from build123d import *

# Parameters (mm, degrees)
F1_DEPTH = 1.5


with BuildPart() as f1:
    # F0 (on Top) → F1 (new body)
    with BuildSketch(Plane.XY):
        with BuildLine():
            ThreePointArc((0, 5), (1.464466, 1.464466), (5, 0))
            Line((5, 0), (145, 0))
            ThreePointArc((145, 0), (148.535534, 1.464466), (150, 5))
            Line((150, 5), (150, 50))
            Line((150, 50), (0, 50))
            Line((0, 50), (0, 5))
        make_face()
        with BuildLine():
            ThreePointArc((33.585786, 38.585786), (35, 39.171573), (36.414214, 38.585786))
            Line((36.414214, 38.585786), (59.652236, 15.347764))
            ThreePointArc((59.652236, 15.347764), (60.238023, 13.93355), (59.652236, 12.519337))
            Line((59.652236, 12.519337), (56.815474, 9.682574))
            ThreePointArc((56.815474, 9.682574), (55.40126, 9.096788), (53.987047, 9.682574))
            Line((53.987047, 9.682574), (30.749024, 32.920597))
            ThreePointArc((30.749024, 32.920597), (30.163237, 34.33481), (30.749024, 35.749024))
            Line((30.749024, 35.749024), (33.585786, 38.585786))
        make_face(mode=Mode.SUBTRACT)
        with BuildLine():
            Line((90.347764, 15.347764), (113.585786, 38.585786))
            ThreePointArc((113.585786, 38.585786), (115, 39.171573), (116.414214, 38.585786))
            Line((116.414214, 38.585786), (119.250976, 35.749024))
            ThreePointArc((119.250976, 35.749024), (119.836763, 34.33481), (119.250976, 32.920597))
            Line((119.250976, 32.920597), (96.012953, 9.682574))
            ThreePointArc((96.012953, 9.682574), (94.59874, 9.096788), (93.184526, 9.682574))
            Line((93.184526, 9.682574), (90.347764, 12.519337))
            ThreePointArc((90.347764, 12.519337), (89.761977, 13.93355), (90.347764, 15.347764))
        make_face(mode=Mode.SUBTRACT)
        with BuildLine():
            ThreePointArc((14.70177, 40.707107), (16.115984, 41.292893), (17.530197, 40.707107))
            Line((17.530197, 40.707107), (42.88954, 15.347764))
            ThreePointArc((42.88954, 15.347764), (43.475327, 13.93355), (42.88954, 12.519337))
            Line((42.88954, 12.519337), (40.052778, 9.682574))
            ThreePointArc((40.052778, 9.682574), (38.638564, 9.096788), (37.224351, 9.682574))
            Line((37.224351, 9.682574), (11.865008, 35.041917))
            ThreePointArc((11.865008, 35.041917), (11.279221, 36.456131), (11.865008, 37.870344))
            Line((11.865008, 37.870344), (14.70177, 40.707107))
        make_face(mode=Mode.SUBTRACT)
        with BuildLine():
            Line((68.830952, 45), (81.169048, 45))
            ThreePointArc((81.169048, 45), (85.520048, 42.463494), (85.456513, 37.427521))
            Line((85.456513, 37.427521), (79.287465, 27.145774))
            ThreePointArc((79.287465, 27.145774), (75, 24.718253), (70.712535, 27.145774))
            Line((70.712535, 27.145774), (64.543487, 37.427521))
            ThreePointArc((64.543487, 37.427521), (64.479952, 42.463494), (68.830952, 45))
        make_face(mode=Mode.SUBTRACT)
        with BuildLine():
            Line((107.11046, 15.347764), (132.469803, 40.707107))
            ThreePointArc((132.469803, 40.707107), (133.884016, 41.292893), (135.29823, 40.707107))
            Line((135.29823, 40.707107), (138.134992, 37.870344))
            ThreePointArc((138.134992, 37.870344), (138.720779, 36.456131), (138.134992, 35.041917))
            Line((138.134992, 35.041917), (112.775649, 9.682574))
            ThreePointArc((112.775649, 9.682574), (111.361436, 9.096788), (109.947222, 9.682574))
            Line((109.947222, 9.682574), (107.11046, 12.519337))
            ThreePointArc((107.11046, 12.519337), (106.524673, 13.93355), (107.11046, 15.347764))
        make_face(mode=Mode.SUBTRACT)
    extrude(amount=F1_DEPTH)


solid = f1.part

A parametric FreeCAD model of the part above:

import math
import FreeCAD as App
import Part
import Sketcher
from FreeCAD import Vector

doc = App.newDocument("Part")
body = doc.addObject("PartDesign::Body", "Body")

# Sketch on XY plane
sketch1 = body.newObject("Sketcher::SketchObject", "Sketch")
sketch1.AttachmentSupport = (doc.getObject("XY_Plane"), [""])
sketch1.MapMode = "FlatFace"
sketch1.addGeometry(Part.ArcOfCircle(Part.Circle(Vector(5, 5, 0), Vector(0, 0, 1), 5), math.radians(179.999996), math.radians(270.000004)), False)
sketch1.addGeometry(Part.LineSegment(Vector(5, 0, 0), Vector(145, 0, 0)), False)
sketch1.addGeometry(Part.ArcOfCircle(Part.Circle(Vector(145, 5, 0), Vector(0, 0, 1), 5), math.radians(-90.000004), math.radians(0.000004)), False)
sketch1.addGeometry(Part.LineSegment(Vector(150, 5, 0), Vector(150, 50, 0)), False)
sketch1.addGeometry(Part.LineSegment(Vector(150, 50, 0), Vector(0, 50, 0)), False)
sketch1.addGeometry(Part.LineSegment(Vector(0, 50, 0), Vector(0, 5, 0)), False)
sketch1.addGeometry(Part.LineSegment(Vector(11.865008, 37.870344, 0), Vector(14.70177, 40.707107, 0)), False)
sketch1.addGeometry(Part.ArcOfCircle(Part.Circle(Vector(16.115983, 39.292892, 0), Vector(0, 0, 1), 2.000001), math.radians(45.000028), math.radians(134.999972)), False)
sketch1.addGeometry(Part.LineSegment(Vector(17.530197, 40.707107, 0), Vector(42.88954, 15.347764, 0)), False)
sketch1.addGeometry(Part.ArcOfCircle(Part.Circle(Vector(41.475329, 13.933551, 0), Vector(0, 0, 1), 1.999998), math.radians(-45.000041), math.radians(45.000041)), False)
sketch1.addGeometry(Part.LineSegment(Vector(42.88954, 12.519337, 0), Vector(40.052778, 9.682574, 0)), False)
sketch1.addGeometry(Part.ArcOfCircle(Part.Circle(Vector(38.638565, 11.096789, 0), Vector(0, 0, 1), 2.000001), math.radians(-134.999972), math.radians(-45.000028)), False)
sketch1.addGeometry(Part.LineSegment(Vector(37.224351, 9.682574, 0), Vector(11.865008, 35.041917, 0)), False)
sketch1.addGeometry(Part.ArcOfCircle(Part.Circle(Vector(13.279219, 36.456131, 0), Vector(0, 0, 1), 1.999998), math.radians(134.999959), math.radians(225.000041)), False)
sketch1.addGeometry(Part.LineSegment(Vector(30.749024, 35.749024, 0), Vector(33.585786, 38.585786, 0)), False)
sketch1.addGeometry(Part.ArcOfCircle(Part.Circle(Vector(35, 37.171573, 0), Vector(0, 0, 1), 2), math.radians(44.999974), math.radians(135.000026)), False)
sketch1.addGeometry(Part.LineSegment(Vector(36.414214, 38.585786, 0), Vector(59.652236, 15.347764, 0)), False)
sketch1.addGeometry(Part.ArcOfCircle(Part.Circle(Vector(58.238025, 13.933551, 0), Vector(0, 0, 1), 1.999998), math.radians(-45.000041), math.radians(45.000041)), False)
sketch1.addGeometry(Part.LineSegment(Vector(59.652236, 12.519337, 0), Vector(56.815474, 9.682574, 0)), False)
sketch1.addGeometry(Part.ArcOfCircle(Part.Circle(Vector(55.40126, 11.096789, 0), Vector(0, 0, 1), 2.000001), math.radians(-134.999972), math.radians(-45.000028)), False)
sketch1.addGeometry(Part.LineSegment(Vector(53.987047, 9.682574, 0), Vector(30.749024, 32.920597, 0)), False)
sketch1.addGeometry(Part.ArcOfCircle(Part.Circle(Vector(32.163235, 34.334811, 0), Vector(0, 0, 1), 1.999998), math.radians(134.999959), math.radians(225.000041)), False)
sketch1.addGeometry(Part.ArcOfCircle(Part.Circle(Vector(91.761975, 13.933551, 0), Vector(0, 0, 1), 1.999998), math.radians(134.999959), math.radians(225.000041)), False)
sketch1.addGeometry(Part.LineSegment(Vector(90.347764, 15.347764, 0), Vector(113.585786, 38.585786, 0)), False)
sketch1.addGeometry(Part.ArcOfCircle(Part.Circle(Vector(115, 37.171573, 0), Vector(0, 0, 1), 2), math.radians(44.999974), math.radians(135.000026)), False)
sketch1.addGeometry(Part.LineSegment(Vector(116.414214, 38.585786, 0), Vector(119.250976, 35.749024, 0)), False)
sketch1.addGeometry(Part.ArcOfCircle(Part.Circle(Vector(117.836765, 34.334811, 0), Vector(0, 0, 1), 1.999998), math.radians(-45.000041), math.radians(45.000041)), False)
sketch1.addGeometry(Part.LineSegment(Vector(119.250976, 32.920597, 0), Vector(96.012953, 9.682574, 0)), False)
sketch1.addGeometry(Part.ArcOfCircle(Part.Circle(Vector(94.598739, 11.096789, 0), Vector(0, 0, 1), 2.000001), math.radians(-134.999972), math.radians(-45.000028)), False)
sketch1.addGeometry(Part.LineSegment(Vector(93.184526, 9.682574, 0), Vector(90.347764, 12.519337, 0)), False)
sketch1.addGeometry(Part.ArcOfCircle(Part.Circle(Vector(108.524671, 13.933551, 0), Vector(0, 0, 1), 1.999998), math.radians(134.999959), math.radians(225.000041)), False)
sketch1.addGeometry(Part.LineSegment(Vector(107.11046, 15.347764, 0), Vector(132.469803, 40.707107, 0)), False)
sketch1.addGeometry(Part.ArcOfCircle(Part.Circle(Vector(133.884017, 39.292892, 0), Vector(0, 0, 1), 2.000001), math.radians(45.000028), math.radians(134.999972)), False)
sketch1.addGeometry(Part.LineSegment(Vector(135.29823, 40.707107, 0), Vector(138.134992, 37.870344, 0)), False)
sketch1.addGeometry(Part.ArcOfCircle(Part.Circle(Vector(136.720781, 36.456131, 0), Vector(0, 0, 1), 1.999998), math.radians(-45.000041), math.radians(45.000041)), False)
sketch1.addGeometry(Part.LineSegment(Vector(138.134992, 35.041917, 0), Vector(112.775649, 9.682574, 0)), False)
sketch1.addGeometry(Part.ArcOfCircle(Part.Circle(Vector(111.361435, 11.096789, 0), Vector(0, 0, 1), 2.000001), math.radians(-134.999972), math.radians(-45.000028)), False)
sketch1.addGeometry(Part.LineSegment(Vector(109.947222, 9.682574, 0), Vector(107.11046, 12.519337, 0)), False)
sketch1.addGeometry(Part.ArcOfCircle(Part.Circle(Vector(68.830952, 40, 0), Vector(0, 0, 1), 5), math.radians(89.999996), math.radians(210.963758)), False)
sketch1.addGeometry(Part.LineSegment(Vector(68.830952, 45, 0), Vector(81.169048, 45, 0)), False)
sketch1.addGeometry(Part.ArcOfCircle(Part.Circle(Vector(81.169048, 40, 0), Vector(0, 0, 1), 5), math.radians(-30.963758), math.radians(90.000004)), False)
sketch1.addGeometry(Part.LineSegment(Vector(85.456513, 37.427521, 0), Vector(79.287465, 27.145774, 0)), False)
sketch1.addGeometry(Part.ArcOfCircle(Part.Circle(Vector(75, 29.718254, 0), Vector(0, 0, 1), 5.000001), math.radians(-149.036235), math.radians(-30.963765)), False)
sketch1.addGeometry(Part.LineSegment(Vector(70.712535, 27.145774, 0), Vector(64.543487, 37.427521, 0)), False)
sketch1.addConstraint(Sketcher.Constraint("Tangent", 0, 2, 1, 1))
sketch1.addConstraint(Sketcher.Constraint("Tangent", 1, 2, 2, 1))
sketch1.addConstraint(Sketcher.Constraint("Tangent", 2, 2, 3, 1))
sketch1.addConstraint(Sketcher.Constraint("Coincident", 3, 2, 4, 1))
sketch1.addConstraint(Sketcher.Constraint("Coincident", 4, 2, 5, 1))
sketch1.addConstraint(Sketcher.Constraint("Tangent", 5, 2, 0, 1))
sketch1.addConstraint(Sketcher.Constraint("Tangent", 6, 2, 7, 2))
sketch1.addConstraint(Sketcher.Constraint("Tangent", 7, 1, 8, 1))
sketch1.addConstraint(Sketcher.Constraint("Tangent", 8, 2, 9, 2))
sketch1.addConstraint(Sketcher.Constraint("Tangent", 9, 1, 10, 1))
sketch1.addConstraint(Sketcher.Constraint("Tangent", 10, 2, 11, 2))
sketch1.addConstraint(Sketcher.Constraint("Tangent", 11, 1, 12, 1))
sketch1.addConstraint(Sketcher.Constraint("Tangent", 12, 2, 13, 2))
sketch1.addConstraint(Sketcher.Constraint("Tangent", 13, 1, 6, 1))
sketch1.addConstraint(Sketcher.Constraint("Tangent", 14, 2, 15, 2))
sketch1.addConstraint(Sketcher.Constraint("Tangent", 15, 1, 16, 1))
sketch1.addConstraint(Sketcher.Constraint("Tangent", 16, 2, 17, 2))
sketch1.addConstraint(Sketcher.Constraint("Tangent", 17, 1, 18, 1))
sketch1.addConstraint(Sketcher.Constraint("Tangent", 18, 2, 19, 2))
sketch1.addConstraint(Sketcher.Constraint("Tangent", 19, 1, 20, 1))
sketch1.addConstraint(Sketcher.Constraint("Tangent", 20, 2, 21, 2))
sketch1.addConstraint(Sketcher.Constraint("Tangent", 21, 1, 14, 1))
sketch1.addConstraint(Sketcher.Constraint("Tangent", 22, 1, 23, 1))
sketch1.addConstraint(Sketcher.Constraint("Tangent", 23, 2, 24, 2))
sketch1.addConstraint(Sketcher.Constraint("Tangent", 24, 1, 25, 1))
sketch1.addConstraint(Sketcher.Constraint("Tangent", 25, 2, 26, 2))
sketch1.addConstraint(Sketcher.Constraint("Tangent", 26, 1, 27, 1))
sketch1.addConstraint(Sketcher.Constraint("Tangent", 27, 2, 28, 2))
sketch1.addConstraint(Sketcher.Constraint("Tangent", 28, 1, 29, 1))
sketch1.addConstraint(Sketcher.Constraint("Tangent", 29, 2, 22, 2))
sketch1.addConstraint(Sketcher.Constraint("Tangent", 30, 1, 31, 1))
sketch1.addConstraint(Sketcher.Constraint("Tangent", 31, 2, 32, 2))
sketch1.addConstraint(Sketcher.Constraint("Tangent", 32, 1, 33, 1))
sketch1.addConstraint(Sketcher.Constraint("Tangent", 33, 2, 34, 2))
sketch1.addConstraint(Sketcher.Constraint("Tangent", 34, 1, 35, 1))
sketch1.addConstraint(Sketcher.Constraint("Tangent", 35, 2, 36, 2))
sketch1.addConstraint(Sketcher.Constraint("Tangent", 36, 1, 37, 1))
sketch1.addConstraint(Sketcher.Constraint("Tangent", 37, 2, 30, 2))
sketch1.addConstraint(Sketcher.Constraint("Tangent", 38, 1, 39, 1))
sketch1.addConstraint(Sketcher.Constraint("Tangent", 39, 2, 40, 2))
sketch1.addConstraint(Sketcher.Constraint("Tangent", 40, 1, 41, 1))
sketch1.addConstraint(Sketcher.Constraint("Tangent", 41, 2, 42, 2))
sketch1.addConstraint(Sketcher.Constraint("Tangent", 42, 1, 43, 1))
sketch1.addConstraint(Sketcher.Constraint("Tangent", 43, 2, 38, 2))
sketch1.addConstraint(Sketcher.Constraint("Horizontal", 1))
sketch1.addConstraint(Sketcher.Constraint("Vertical", 3))
sketch1.addConstraint(Sketcher.Constraint("Horizontal", 4))
sketch1.addConstraint(Sketcher.Constraint("Vertical", 5))
sketch1.addConstraint(Sketcher.Constraint("Horizontal", 39))
sketch1.addConstraint(Sketcher.Constraint("Equal", 0, 2))
sketch1.addConstraint(Sketcher.Constraint("Equal", 7, 11))
sketch1.addConstraint(Sketcher.Constraint("Equal", 9, 13))
sketch1.addConstraint(Sketcher.Constraint("Equal", 13, 15))
sketch1.addConstraint(Sketcher.Constraint("Equal", 15, 17))
sketch1.addConstraint(Sketcher.Constraint("Equal", 15, 19))
sketch1.addConstraint(Sketcher.Constraint("Equal", 17, 21))
sketch1.addConstraint(Sketcher.Constraint("Equal", 21, 22))
sketch1.addConstraint(Sketcher.Constraint("Equal", 22, 24))
sketch1.addConstraint(Sketcher.Constraint("Equal", 24, 26))
sketch1.addConstraint(Sketcher.Constraint("Equal", 24, 28))
sketch1.addConstraint(Sketcher.Constraint("Equal", 26, 30))
sketch1.addConstraint(Sketcher.Constraint("Equal", 28, 32))
sketch1.addConstraint(Sketcher.Constraint("Equal", 30, 34))
sketch1.addConstraint(Sketcher.Constraint("Equal", 32, 36))
sketch1.addConstraint(Sketcher.Constraint("Equal", 2, 38))
sketch1.addConstraint(Sketcher.Constraint("Equal", 38, 40))
sketch1.addConstraint(Sketcher.Constraint("Equal", 40, 42))
sketch1.addConstraint(Sketcher.Constraint("PointOnObject", 0, 2, -1))
sketch1.addConstraint(Sketcher.Constraint("PointOnObject", 4, 2, -2))
sketch1.addConstraint(Sketcher.Constraint("Perpendicular", 6, 8))
sketch1.addConstraint(Sketcher.Constraint("Perpendicular", 8, 10))
sketch1.addConstraint(Sketcher.Constraint("Perpendicular", 10, 12))
sketch1.addConstraint(Sketcher.Constraint("Perpendicular", 12, 14))
sketch1.addConstraint(Sketcher.Constraint("Perpendicular", 14, 16))
sketch1.addConstraint(Sketcher.Constraint("Perpendicular", 16, 18))
sketch1.addConstraint(Sketcher.Constraint("Perpendicular", 18, 20))
sketch1.addConstraint(Sketcher.Constraint("Perpendicular", 20, 23))
sketch1.addConstraint(Sketcher.Constraint("Perpendicular", 23, 25))
sketch1.addConstraint(Sketcher.Constraint("Perpendicular", 25, 27))
sketch1.addConstraint(Sketcher.Constraint("Perpendicular", 27, 29))
sketch1.addConstraint(Sketcher.Constraint("Perpendicular", 29, 31))
sketch1.addConstraint(Sketcher.Constraint("Perpendicular", 31, 33))
sketch1.addConstraint(Sketcher.Constraint("Perpendicular", 33, 35))
sketch1.addConstraint(Sketcher.Constraint("Perpendicular", 35, 37))
sketch1.addConstraint(Sketcher.Constraint("Horizontal", 9, 3, 17, 3))
sketch1.addConstraint(Sketcher.Constraint("Horizontal", 11, 3, 19, 3))
sketch1.addConstraint(Sketcher.Constraint("Horizontal", 17, 3, 22, 3))
sketch1.addConstraint(Sketcher.Constraint("Horizontal", 15, 3, 24, 3))
sketch1.addConstraint(Sketcher.Constraint("Horizontal", 21, 3, 26, 3))
sketch1.addConstraint(Sketcher.Constraint("Horizontal", 22, 3, 30, 3))
sketch1.addConstraint(Sketcher.Constraint("Horizontal", 7, 3, 32, 3))
sketch1.addConstraint(Sketcher.Constraint("Horizontal", 13, 3, 34, 3))
sketch1.addConstraint(Sketcher.Constraint("Horizontal", 6, 2, 7, 1))
sketch1.addConstraint(Sketcher.Constraint("Horizontal", 11, 1, 18, 2))
sketch1.addConstraint(Sketcher.Constraint("Horizontal", 41, 2, 42, 1))
sketch1.addConstraint(Sketcher.Constraint("Radius", 0, 5.0))
sketch1.addConstraint(Sketcher.Constraint("Radius", 7, 2.000001))
sketch1.addConstraint(Sketcher.Constraint("DistanceX", 1, 1, 1, 2, 140.0))
sketch1.addConstraint(Sketcher.Constraint("DistanceY", 3, 1, 3, 2, 45.0))
sketch1.addConstraint(Sketcher.Constraint("DistanceX", -1, 1, 15, 3, 35.0))
sketch1.addConstraint(Sketcher.Constraint("DistanceX", -1, 1, 24, 3, 115.0))
sketch1.addConstraint(Sketcher.Constraint("DistanceY", -1, 1, 38, 3, 40.0))
sketch1.addConstraint(Sketcher.Constraint("DistanceX", -1, 1, 42, 3, 75.0))
sketch1.addConstraint(Sketcher.Constraint("Distance", 6, 4.011788))
sketch1.addConstraint(Sketcher.Constraint("DistanceX", 39, 1, 39, 2, 12.338096))
sketch1.addConstraint(Sketcher.Constraint("DistanceX", -1, 1, 9, 3, 41.475329))
sketch1.addConstraint(Sketcher.Constraint("DistanceY", -1, 1, 9, 3, 13.933551))
sketch1.addConstraint(Sketcher.Constraint("DistanceX", -1, 1, 13, 3, 13.279219))
sketch1.addConstraint(Sketcher.Constraint("DistanceX", -1, 1, 19, 3, 55.40126))
sketch1.addConstraint(Sketcher.Constraint("DistanceX", -1, 1, 30, 3, 108.524671))
sketch1.addConstraint(Sketcher.Constraint("DistanceY", -1, 1, 40, 1, 37.427521))
pad1 = body.newObject("PartDesign::Pad", "Pad")
pad1.Profile = sketch1
pad1.Length = 1.5

doc.recompute()
